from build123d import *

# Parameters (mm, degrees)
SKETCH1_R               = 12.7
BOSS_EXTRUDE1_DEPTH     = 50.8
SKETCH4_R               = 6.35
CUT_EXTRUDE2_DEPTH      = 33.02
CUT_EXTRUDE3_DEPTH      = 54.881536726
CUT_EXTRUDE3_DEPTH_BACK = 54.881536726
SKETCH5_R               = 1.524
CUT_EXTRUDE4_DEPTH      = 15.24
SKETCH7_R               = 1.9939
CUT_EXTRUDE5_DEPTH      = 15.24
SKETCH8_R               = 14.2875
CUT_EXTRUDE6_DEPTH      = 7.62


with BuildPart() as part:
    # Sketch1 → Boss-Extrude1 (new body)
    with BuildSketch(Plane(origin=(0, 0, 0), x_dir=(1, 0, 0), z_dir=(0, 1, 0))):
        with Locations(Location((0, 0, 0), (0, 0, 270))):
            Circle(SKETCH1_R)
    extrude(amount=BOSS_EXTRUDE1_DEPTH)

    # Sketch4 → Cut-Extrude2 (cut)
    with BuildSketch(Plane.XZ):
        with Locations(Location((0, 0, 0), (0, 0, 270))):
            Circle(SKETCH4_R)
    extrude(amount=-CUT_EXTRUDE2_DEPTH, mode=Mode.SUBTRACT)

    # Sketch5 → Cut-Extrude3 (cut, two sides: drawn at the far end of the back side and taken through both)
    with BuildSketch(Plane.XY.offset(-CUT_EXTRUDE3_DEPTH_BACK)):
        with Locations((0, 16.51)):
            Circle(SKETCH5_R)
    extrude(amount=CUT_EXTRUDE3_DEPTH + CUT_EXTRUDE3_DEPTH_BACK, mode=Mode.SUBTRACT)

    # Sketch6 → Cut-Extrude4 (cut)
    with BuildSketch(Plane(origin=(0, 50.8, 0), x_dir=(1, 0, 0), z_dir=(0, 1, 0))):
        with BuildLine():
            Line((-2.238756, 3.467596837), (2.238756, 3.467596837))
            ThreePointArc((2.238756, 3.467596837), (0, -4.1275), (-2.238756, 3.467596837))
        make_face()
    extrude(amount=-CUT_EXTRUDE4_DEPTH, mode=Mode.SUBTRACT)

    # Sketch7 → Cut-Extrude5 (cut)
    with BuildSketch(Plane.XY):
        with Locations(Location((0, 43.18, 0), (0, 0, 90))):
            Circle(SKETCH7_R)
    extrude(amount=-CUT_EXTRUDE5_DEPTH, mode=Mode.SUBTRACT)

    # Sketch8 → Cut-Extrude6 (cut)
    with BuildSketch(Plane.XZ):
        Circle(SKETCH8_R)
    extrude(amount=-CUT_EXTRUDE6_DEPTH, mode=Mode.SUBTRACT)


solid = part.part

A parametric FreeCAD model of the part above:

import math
import FreeCAD as App
import Part
import Sketcher
Q = App.Units.Quantity

doc = App.newDocument("Part")
body = doc.addObject("PartDesign::Body", "Body")

# Sketch on XZ plane
sketch1 = body.newObject("Sketcher::SketchObject", "Sketch")
sketch1.AttachmentSupport = (doc.getObject("XZ_Plane"), [""])
sketch1.MapMode = "FlatFace"
sketch1.addGeometry(Part.Circle(App.Vector(0, 0, 0), App.Vector(0, 0, 1), 13), False)
sketch1.addConstraint(Sketcher.Constraint("Coincident", 0, 3, -1, 1))
sketch1.addConstraint(Sketcher.Constraint("Diameter", 0, Q("1 in")))
pad1 = body.newObject("PartDesign::Pad", "Pad")
pad1.Profile = sketch1
pad1.Length = Q("2 in")
pad1.Reversed = True

# Sketch on XZ plane
sketch2 = body.newObject("Sketcher::SketchObject", "Sketch001")
sketch2.AttachmentSupport = (doc.getObject("XZ_Plane"), [""])
sketch2.MapMode = "FlatFace"
sketch2.addGeometry(Part.Circle(App.Vector(0, 0, 0), App.Vector(0, 0, 1), 6), False)
sketch2.addConstraint(Sketcher.Constraint("Coincident", 0, 3, -1, 1))
sketch2.addConstraint(Sketcher.Constraint("Diameter", 0, Q("0.5 in")))
pocket1 = body.newObject("PartDesign::Pocket", "Pocket")
pocket1.Profile = sketch2
pocket1.Length = Q("1.3 in")

# Sketch on XY plane
sketch3 = body.newObject("Sketcher::SketchObject", "Sketch002")
sketch3.AttachmentSupport = (doc.getObject("XY_Plane"), [""])
sketch3.MapMode = "FlatFace"
sketch3.addGeometry(Part.Circle(App.Vector(0, 16.5, 0), App.Vector(0, 0, 1), 1.5), False)
sketch3.addConstraint(Sketcher.Constraint("PointOnObject", 0, 3, -2))
sketch3.addConstraint(Sketcher.Constraint("Diameter", 0, Q("0.12 in")))
sketch3.addConstraint(Sketcher.Constraint("DistanceY", -1, 1, 0, 3, Q("0.65 in")))
pocket2 = body.newObject("PartDesign::Pocket", "Pocket001")
pocket2.Profile = sketch3
pocket2.Type = "ThroughAll"
pocket2.Midplane = True

# Sketch on XZ plane
sketch4 = body.newObject("Sketcher::SketchObject", "Sketch003")
sketch4.AttachmentSupport = (doc.getObject("XZ_Plane"), [""])
sketch4.MapMode = "FlatFace"
sketch4.AttachmentOffset = App.Placement(App.Vector(0, 0, -2 * 25.4), App.Rotation())
sketch4.addGeometry(Part.LineSegment(App.Vector(2.2, -3.5, 0), App.Vector(-2.2, -3.5, 0)), False)
sketch4.addGeometry(Part.ArcOfCircle(Part.Circle(App.Vector(0, 0, 0), App.Vector(0, 0, 1), 4.1), math.radians(-57), math.radians(237)), False)
sketch4.addConstraint(Sketcher.Constraint("Coincident", 0, 1, 1, 1))
sketch4.addConstraint(Sketcher.Constraint("Coincident", 1, 2, 0, 2))
sketch4.addConstraint(Sketcher.Constraint("Horizontal", 0))
sketch4.addConstraint(Sketcher.Constraint("Coincident", 1, 3, -1, 1))
sketch4.addConstraint(Sketcher.Constraint("Radius", 1, Q("0.1625 in")))
sketch4.addConstraint(Sketcher.Constraint("DistanceX", 0, 2, 0, 1, 4.477512))
pocket3 = body.newObject("PartDesign::Pocket", "Pocket002")
pocket3.Profile = sketch4
pocket3.Length = Q("0.6 in")
pocket3.Reversed = True

# Sketch on XY plane
sketch5 = body.newObject("Sketcher::SketchObject", "Sketch004")
sketch5.AttachmentSupport = (doc.getObject("XY_Plane"), [""])
sketch5.MapMode = "FlatFace"
sketch5.addGeometry(Part.Circle(App.Vector(0, 43.2, 0), App.Vector(0, 0, 1), 2), False)
sketch5.addConstraint(Sketcher.Constraint("PointOnObject", 0, 3, -2))
sketch5.addConstraint(Sketcher.Constraint("Diameter", 0, Q("0.157 in")))
sketch5.addConstraint(Sketcher.Constraint("DistanceY", -1, 1, 0, 3, Q("1.7 in")))
pocket4 = body.newObject("PartDesign::Pocket", "Pocket003")
pocket4.Profile = sketch5
pocket4.Length = Q("0.6 in")

# Sketch on XZ plane
sketch6 = body.newObject("Sketcher::SketchObject", "Sketch005")
sketch6.AttachmentSupport = (doc.getObject("XZ_Plane"), [""])
sketch6.MapMode = "FlatFace"
sketch6.addGeometry(Part.Circle(App.Vector(0, 0, 0), App.Vector(0, 0, 1), 14), False)
sketch6.addConstraint(Sketcher.Constraint("Coincident", 0, 3, -1, 1))
sketch6.addConstraint(Sketcher.Constraint("Diameter", 0, Q("1.125 in")))
pocket5 = body.newObject("PartDesign::Pocket", "Pocket004")
pocket5.Profile = sketch6
pocket5.Length = Q("0.3 in")

doc.recompute()
